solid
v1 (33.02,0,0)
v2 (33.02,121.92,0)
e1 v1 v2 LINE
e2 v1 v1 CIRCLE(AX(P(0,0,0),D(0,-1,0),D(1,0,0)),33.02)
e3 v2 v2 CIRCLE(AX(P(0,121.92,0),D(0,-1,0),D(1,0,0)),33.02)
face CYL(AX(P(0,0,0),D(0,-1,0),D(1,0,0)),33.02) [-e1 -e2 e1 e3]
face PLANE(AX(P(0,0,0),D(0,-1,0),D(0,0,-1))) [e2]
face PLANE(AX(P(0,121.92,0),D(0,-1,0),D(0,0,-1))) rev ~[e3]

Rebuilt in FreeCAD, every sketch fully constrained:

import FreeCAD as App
import Part
import Sketcher

V = App.Vector
Q = App.Units.Quantity

doc = App.newDocument("Part")
body = doc.addObject("PartDesign::Body", "Body")

# Sketch on XZ plane
sketch1 = body.newObject("Sketcher::SketchObject", "Sketch")
sketch1.AttachmentSupport = (doc.getObject("XZ_Plane"), [""])
sketch1.MapMode = "FlatFace"
sketch1.addGeometry(Part.Circle(V(0, 0, 0), V(0, 0, 1), 33), False)
sketch1.addConstraint([
    Sketcher.Constraint("Coincident", 0, 3, -1, 1),
    Sketcher.Constraint("Diameter", 0, Q("2.6 in")),
])
pad1 = body.newObject("PartDesign::Pad", "Pad")
pad1.Profile = sketch1
pad1.Length = Q("4.8 in")
pad1.Reversed = True

doc.recompute()
